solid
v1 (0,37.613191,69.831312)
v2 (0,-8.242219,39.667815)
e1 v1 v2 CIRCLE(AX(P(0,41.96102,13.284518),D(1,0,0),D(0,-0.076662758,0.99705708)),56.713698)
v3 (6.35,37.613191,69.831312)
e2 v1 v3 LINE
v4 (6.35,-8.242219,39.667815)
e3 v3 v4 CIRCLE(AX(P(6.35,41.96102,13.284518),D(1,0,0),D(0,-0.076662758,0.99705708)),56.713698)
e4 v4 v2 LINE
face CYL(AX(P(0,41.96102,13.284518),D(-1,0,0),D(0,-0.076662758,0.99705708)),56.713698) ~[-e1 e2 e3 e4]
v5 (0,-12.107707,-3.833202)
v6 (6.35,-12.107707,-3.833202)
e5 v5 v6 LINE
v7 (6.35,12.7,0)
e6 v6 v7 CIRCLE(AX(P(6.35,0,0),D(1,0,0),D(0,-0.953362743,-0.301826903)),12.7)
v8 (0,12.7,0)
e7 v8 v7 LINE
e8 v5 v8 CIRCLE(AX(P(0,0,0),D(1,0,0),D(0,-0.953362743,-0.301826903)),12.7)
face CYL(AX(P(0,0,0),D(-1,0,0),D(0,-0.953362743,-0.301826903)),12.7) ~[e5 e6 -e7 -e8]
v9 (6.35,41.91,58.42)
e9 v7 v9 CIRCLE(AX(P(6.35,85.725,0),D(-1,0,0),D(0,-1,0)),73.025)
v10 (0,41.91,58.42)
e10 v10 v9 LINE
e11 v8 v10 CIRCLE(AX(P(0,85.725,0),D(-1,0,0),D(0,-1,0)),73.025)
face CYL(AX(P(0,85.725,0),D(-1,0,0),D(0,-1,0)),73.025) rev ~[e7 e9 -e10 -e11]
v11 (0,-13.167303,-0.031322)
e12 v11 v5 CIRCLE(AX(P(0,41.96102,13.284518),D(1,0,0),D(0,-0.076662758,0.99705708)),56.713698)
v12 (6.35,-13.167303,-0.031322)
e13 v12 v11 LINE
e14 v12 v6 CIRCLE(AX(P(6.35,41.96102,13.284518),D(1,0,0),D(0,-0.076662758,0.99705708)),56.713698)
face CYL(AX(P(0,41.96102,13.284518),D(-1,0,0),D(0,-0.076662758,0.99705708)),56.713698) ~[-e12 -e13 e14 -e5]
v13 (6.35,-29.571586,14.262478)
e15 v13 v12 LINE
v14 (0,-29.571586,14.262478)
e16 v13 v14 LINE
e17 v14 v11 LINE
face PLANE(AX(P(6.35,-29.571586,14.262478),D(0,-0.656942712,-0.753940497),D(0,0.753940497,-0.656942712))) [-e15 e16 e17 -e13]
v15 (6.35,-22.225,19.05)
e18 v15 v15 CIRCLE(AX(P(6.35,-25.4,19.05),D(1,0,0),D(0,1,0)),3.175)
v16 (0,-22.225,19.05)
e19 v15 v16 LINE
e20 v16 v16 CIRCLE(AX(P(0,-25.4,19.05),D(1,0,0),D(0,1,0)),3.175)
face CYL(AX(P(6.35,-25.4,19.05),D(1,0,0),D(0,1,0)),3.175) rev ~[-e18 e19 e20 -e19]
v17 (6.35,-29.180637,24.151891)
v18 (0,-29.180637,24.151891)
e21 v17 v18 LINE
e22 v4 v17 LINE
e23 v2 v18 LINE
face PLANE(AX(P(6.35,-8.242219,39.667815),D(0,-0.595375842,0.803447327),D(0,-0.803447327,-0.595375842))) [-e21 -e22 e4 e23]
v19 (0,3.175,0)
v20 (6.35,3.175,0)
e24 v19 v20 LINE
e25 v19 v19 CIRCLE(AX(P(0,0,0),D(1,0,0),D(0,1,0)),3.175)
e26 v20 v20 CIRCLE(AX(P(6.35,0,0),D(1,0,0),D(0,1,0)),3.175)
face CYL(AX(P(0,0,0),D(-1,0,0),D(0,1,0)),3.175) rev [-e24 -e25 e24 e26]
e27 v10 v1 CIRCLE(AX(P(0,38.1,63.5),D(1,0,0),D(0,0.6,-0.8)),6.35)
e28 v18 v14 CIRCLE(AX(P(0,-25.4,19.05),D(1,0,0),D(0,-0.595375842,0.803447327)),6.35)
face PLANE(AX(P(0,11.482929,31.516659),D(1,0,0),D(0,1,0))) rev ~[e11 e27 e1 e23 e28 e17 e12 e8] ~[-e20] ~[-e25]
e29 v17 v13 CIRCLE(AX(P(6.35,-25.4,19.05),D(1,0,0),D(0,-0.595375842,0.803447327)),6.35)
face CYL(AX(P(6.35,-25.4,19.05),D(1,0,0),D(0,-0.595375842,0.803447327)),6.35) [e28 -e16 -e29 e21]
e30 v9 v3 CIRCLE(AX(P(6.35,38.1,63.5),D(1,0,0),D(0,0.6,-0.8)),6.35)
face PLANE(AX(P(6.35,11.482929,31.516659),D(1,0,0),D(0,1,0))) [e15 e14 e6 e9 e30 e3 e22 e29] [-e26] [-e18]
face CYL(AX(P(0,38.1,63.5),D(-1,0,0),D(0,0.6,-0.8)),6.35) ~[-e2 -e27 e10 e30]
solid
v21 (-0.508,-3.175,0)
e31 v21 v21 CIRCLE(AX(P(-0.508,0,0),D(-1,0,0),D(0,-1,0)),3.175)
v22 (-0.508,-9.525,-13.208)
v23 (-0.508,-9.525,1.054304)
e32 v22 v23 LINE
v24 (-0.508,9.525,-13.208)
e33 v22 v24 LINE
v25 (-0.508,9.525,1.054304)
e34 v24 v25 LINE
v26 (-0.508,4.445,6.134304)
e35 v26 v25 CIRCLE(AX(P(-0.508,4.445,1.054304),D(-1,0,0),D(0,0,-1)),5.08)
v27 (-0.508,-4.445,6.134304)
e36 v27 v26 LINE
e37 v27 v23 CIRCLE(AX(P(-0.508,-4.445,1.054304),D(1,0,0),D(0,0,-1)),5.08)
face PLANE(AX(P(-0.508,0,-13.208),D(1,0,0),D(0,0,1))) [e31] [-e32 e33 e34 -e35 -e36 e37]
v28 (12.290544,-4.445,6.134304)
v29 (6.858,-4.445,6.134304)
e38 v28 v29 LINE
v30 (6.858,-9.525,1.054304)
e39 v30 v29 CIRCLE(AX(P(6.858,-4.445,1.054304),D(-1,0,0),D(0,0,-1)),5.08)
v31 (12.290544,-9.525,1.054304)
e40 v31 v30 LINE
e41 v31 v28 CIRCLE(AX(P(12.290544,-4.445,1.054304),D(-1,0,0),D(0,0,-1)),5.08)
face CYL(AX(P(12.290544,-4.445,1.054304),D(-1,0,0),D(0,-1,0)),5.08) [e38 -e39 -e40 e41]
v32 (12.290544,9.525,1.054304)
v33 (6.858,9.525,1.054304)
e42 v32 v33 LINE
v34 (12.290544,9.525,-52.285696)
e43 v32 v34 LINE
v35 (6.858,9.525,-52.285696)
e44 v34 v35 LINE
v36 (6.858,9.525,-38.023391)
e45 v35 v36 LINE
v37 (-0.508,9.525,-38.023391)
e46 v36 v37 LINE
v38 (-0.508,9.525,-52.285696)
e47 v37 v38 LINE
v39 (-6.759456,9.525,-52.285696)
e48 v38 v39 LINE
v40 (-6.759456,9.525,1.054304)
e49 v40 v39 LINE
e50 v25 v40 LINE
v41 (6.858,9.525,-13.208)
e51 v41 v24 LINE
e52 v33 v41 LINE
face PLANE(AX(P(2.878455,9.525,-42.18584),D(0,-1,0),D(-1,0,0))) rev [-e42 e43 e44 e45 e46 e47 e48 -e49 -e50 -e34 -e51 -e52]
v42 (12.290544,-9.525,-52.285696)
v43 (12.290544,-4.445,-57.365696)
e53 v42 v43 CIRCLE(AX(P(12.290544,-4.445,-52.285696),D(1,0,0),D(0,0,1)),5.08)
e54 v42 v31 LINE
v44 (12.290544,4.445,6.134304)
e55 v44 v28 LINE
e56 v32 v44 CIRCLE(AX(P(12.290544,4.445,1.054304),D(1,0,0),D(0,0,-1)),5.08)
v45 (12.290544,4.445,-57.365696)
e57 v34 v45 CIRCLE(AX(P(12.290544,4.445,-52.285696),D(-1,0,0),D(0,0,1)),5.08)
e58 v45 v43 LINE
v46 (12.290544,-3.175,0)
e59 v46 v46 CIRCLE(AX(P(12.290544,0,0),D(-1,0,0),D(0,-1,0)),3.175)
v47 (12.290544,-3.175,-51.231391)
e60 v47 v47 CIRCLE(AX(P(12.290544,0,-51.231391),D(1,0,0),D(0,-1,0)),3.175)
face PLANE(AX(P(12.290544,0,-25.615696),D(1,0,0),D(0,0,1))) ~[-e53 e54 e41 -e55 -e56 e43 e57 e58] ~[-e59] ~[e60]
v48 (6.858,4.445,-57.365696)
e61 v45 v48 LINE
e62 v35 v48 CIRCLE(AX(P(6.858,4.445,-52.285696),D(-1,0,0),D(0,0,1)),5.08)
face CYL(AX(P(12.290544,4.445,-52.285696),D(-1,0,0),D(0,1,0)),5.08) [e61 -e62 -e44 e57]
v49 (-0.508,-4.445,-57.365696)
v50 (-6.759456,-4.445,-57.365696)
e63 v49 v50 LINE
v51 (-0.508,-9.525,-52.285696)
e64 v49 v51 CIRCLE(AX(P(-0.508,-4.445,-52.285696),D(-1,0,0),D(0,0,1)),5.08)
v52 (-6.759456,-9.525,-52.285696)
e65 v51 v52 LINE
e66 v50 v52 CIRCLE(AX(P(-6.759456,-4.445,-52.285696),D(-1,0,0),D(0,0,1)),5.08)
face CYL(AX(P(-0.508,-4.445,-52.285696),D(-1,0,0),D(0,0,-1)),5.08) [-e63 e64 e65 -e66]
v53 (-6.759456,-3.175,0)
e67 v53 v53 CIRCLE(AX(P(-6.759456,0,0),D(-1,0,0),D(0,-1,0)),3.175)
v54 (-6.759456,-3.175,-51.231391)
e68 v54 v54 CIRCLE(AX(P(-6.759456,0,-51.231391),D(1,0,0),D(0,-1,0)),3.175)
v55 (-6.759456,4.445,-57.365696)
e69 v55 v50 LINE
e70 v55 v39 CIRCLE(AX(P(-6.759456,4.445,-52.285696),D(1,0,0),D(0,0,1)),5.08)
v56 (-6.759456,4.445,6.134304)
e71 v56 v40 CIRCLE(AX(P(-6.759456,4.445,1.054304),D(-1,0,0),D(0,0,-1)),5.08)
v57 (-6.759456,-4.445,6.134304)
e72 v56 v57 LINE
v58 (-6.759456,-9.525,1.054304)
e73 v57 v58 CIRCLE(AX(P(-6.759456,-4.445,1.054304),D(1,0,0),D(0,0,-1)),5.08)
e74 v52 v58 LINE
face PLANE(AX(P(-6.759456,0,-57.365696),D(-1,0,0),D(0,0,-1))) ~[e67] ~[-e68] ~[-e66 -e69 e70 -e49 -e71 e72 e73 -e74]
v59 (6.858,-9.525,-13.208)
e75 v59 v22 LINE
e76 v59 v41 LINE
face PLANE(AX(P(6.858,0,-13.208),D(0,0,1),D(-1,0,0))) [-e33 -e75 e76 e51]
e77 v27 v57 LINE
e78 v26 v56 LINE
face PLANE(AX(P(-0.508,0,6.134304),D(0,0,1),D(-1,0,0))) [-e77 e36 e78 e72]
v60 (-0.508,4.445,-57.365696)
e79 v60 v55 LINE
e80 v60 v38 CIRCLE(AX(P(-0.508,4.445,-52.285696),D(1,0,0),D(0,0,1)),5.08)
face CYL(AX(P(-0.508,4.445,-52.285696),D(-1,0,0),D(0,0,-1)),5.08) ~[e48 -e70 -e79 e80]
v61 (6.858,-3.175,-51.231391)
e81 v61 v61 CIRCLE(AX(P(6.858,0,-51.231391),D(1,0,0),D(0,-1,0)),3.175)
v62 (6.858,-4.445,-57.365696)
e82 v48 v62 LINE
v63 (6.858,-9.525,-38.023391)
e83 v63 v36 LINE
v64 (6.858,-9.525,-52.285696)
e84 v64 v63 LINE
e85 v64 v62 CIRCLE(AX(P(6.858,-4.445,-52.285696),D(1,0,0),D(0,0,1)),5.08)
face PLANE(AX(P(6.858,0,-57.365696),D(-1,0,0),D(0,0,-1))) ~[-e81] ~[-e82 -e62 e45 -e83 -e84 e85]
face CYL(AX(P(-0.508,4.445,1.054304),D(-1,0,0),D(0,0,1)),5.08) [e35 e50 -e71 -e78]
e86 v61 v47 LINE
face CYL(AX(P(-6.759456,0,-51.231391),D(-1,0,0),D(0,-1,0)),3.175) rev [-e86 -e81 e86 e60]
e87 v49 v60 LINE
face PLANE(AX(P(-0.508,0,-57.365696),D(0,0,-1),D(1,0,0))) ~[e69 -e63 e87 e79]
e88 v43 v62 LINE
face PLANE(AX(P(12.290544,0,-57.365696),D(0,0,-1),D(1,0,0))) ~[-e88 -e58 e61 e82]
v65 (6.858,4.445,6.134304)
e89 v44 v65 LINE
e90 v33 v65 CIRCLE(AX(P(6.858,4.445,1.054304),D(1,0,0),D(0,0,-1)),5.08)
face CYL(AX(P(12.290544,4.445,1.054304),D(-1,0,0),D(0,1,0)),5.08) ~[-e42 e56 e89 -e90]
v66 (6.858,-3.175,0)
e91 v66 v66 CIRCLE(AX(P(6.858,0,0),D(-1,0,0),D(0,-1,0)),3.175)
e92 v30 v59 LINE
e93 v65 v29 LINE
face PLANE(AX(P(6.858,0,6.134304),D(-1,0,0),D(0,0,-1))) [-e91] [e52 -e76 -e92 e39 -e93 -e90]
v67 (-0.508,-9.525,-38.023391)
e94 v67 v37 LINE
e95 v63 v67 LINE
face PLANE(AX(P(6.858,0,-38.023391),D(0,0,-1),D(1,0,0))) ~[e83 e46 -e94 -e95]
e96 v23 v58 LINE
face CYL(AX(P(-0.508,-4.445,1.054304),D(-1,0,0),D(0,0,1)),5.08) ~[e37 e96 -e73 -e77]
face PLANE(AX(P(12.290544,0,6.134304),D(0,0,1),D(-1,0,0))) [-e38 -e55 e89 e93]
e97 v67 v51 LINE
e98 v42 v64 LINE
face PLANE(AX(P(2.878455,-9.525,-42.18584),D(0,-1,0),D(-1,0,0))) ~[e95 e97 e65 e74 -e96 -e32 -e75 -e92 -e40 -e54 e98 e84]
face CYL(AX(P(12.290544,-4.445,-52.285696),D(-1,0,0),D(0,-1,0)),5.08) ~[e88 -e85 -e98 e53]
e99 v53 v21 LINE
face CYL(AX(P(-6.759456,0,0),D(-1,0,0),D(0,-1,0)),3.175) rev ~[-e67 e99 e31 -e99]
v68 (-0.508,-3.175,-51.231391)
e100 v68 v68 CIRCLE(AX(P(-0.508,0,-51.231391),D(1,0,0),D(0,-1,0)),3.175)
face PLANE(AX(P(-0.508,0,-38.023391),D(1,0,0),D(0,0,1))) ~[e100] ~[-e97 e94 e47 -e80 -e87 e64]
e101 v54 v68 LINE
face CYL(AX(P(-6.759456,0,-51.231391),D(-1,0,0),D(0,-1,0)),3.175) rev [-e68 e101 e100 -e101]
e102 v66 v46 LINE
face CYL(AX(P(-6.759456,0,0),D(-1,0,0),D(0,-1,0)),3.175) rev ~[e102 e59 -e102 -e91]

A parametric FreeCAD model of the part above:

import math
import FreeCAD as App
import Part
import Sketcher

V = App.Vector
Q = App.Units.Quantity


def edges_at(feature, points):
    """Names of the edges that pass closest to the given points."""
    edges = feature.Shape.Edges
    near = lambda p: min(range(len(edges)), key=lambda i: edges[i].distToShape(Part.Vertex(*p))[0])
    return sorted({f"Edge{near(p) + 1}" for p in points})


def add_polygon(sketch, points):
    """Adds a closed chain of lines whose ends are joined by coincident constraints."""
    first, n = sketch.GeometryCount, len(points)
    for a, b in zip(points, points[1:] + points[:1]):
        sketch.addGeometry(Part.LineSegment(App.Vector(*a, 0), App.Vector(*b, 0)), False)
    for i in range(n):
        sketch.addConstraint(Sketcher.Constraint("Coincident", first + i, 2, first + (i + 1) % n, 1))

doc = App.newDocument("Part")
body = doc.addObject("PartDesign::Body", "Body")

# Sketch on YZ plane
sketch1 = body.newObject("Sketcher::SketchObject", "Sketch")
sketch1.AttachmentSupport = (doc.getObject("YZ_Plane"), [""])
sketch1.MapMode = "FlatFace"
sketch1.addGeometry(Part.ArcOfCircle(Part.Circle(V(42, 13.3, 0), V(0, 0, 1), 56.7), math.radians(94), math.radians(198)), False)
sketch1.addGeometry(Part.ArcOfCircle(Part.Circle(V(0, 0, 0), V(0, 0, 1), 12.7), math.radians(-162), math.radians(0)), False)
sketch1.addGeometry(Part.ArcOfCircle(Part.Circle(V(85.7, 0, 0), V(0, 0, 1), 73), math.radians(127), math.radians(180)), False)
sketch1.addGeometry(Part.ArcOfCircle(Part.Circle(V(38.1, 63.5, 0), V(0, 0, 1), 6.3), math.radians(-53), math.radians(94)), False)
sketch1.addGeometry(Part.Circle(V(0, 0, 0), V(0, 0, 1), 3.2), False)
sketch1.addConstraint(Sketcher.Constraint("Tangent", 0, 2, 1, 1))
sketch1.addConstraint(Sketcher.Constraint("Tangent", 1, 2, 2, 2))
sketch1.addConstraint(Sketcher.Constraint("Tangent", 2, 1, 3, 1))
sketch1.addConstraint(Sketcher.Constraint("Tangent", 3, 2, 0, 1))
sketch1.addConstraint(Sketcher.Constraint("Coincident", 1, 3, -1, 1))
sketch1.addConstraint(Sketcher.Constraint("Coincident", 4, 3, -1, 1))
sketch1.addConstraint(Sketcher.Constraint("PointOnObject", 2, 3, -1))
sketch1.addConstraint(Sketcher.Constraint("Radius", 1, Q("0.5 in")))
sketch1.addConstraint(Sketcher.Constraint("Diameter", 4, Q("0.25 in")))
sketch1.addConstraint(Sketcher.Constraint("Radius", 3, Q("0.25 in")))
sketch1.addConstraint(Sketcher.Constraint("Radius", 2, Q("2.875 in")))
sketch1.addConstraint(Sketcher.Constraint("DistanceX", 1, 2, 3, 3, Q("1 in")))
sketch1.addConstraint(Sketcher.Constraint("Radius", 0, Q("56.713698 mm")))
pad1 = body.newObject("PartDesign::Pad", "Pad")
pad1.Profile = sketch1
pad1.Length = Q("0.25 in")

# Sketch on YZ plane
sketch2 = body.newObject("Sketcher::SketchObject", "Sketch001")
sketch2.AttachmentSupport = (doc.getObject("YZ_Plane"), [""])
sketch2.MapMode = "FlatFace"
sketch2.AttachmentOffset = App.Placement(V(0, 0, 0.25 * 25.4), App.Rotation())
sketch2.addGeometry(Part.LineSegment(V(-8.2, 39.7, 0), V(-29.2, 24.2, 0)), False)
sketch2.addGeometry(Part.ArcOfCircle(Part.Circle(V(-25.4, 19.1, 0), V(0, 0, 1), 6.3), math.radians(127), math.radians(229)), False)
sketch2.addGeometry(Part.LineSegment(V(-29.6, 14.3, 0), V(-13.2, 0, 0)), False)
sketch2.addGeometry(Part.ArcOfCircle(Part.Circle(V(42, 13.3, 0), V(0, 0, 1), 56.7), math.radians(152), math.radians(194)), False)
sketch2.addGeometry(Part.Circle(V(-25.4, 19.1, 0), V(0, 0, 1), 3.2), False)
sketch2.addConstraint(Sketcher.Constraint("Tangent", 0, 2, 1, 1))
sketch2.addConstraint(Sketcher.Constraint("Tangent", 1, 2, 2, 1))
sketch2.addConstraint(Sketcher.Constraint("Coincident", 2, 2, 3, 2))
sketch2.addConstraint(Sketcher.Constraint("Coincident", 3, 1, 0, 1))
sketch2.addConstraint(Sketcher.Constraint("Coincident", 4, 3, 1, 3))
sketch2.addConstraint(Sketcher.Constraint("Diameter", 4, Q("0.25 in")))
sketch2.addConstraint(Sketcher.Constraint("Radius", 1, Q("0.25 in")))
sketch2.addConstraint(Sketcher.Constraint("DistanceX", 1, 3, -1, 1, Q("1 in")))
sketch2.addConstraint(Sketcher.Constraint("DistanceY", -1, 1, 1, 3, Q("0.75 in")))
sketch2.addConstraint(Sketcher.Constraint("Radius", 3, Q("56.713698 mm")))
sketch2.addConstraint(Sketcher.Constraint("DistanceY", 2, 2, 1, 2, Q("14.2938 mm")))
sketch2.addConstraint(Sketcher.Constraint("Distance", 2, Q("21.758061 mm")))
sketch2.addConstraint(Sketcher.Constraint("DistanceX", -1, 1, 3, 3, Q("41.96102 mm")))
sketch2.addConstraint(Sketcher.Constraint("DistanceY", -1, 1, 0, 2, Q("24.151891 mm")))
pad2 = body.newObject("PartDesign::Pad", "Pad001")
pad2.Profile = sketch2
pad2.Length = Q("0.25 in")
pad2.Reversed = True
body2 = doc.addObject("PartDesign::Body", "Body001")

# Sketch on XZ plane
sketch3 = body2.newObject("Sketcher::SketchObject", "Sketch002")
sketch3.AttachmentSupport = (doc.getObject("XZ_Plane001"), [""])
sketch3.MapMode = "FlatFace"
add_polygon(sketch3, [(-1, 6), (-7, 6), (-7, -26), (12, -26), (12, 6), (7, 6), (7, -13), (-1, -13)])  # lines 0-7
sketch3.addConstraint(Sketcher.Constraint("Horizontal", 0))
sketch3.addConstraint(Sketcher.Constraint("Vertical", 1))
sketch3.addConstraint(Sketcher.Constraint("Horizontal", 2))
sketch3.addConstraint(Sketcher.Constraint("Vertical", 3))
sketch3.addConstraint(Sketcher.Constraint("Horizontal", 4))
sketch3.addConstraint(Sketcher.Constraint("Vertical", 5))
sketch3.addConstraint(Sketcher.Constraint("Horizontal", 6))
sketch3.addConstraint(Sketcher.Constraint("Vertical", 7))
sketch3.addConstraint(Sketcher.Constraint("Horizontal", 0, 2, 3, 2))
sketch3.addConstraint(Sketcher.Constraint("DistanceX", 2, 1, 2, 2, Q("0.75 in")))
sketch3.addConstraint(Sketcher.Constraint("DistanceX", 6, 2, 6, 1, Q("0.29 in")))
sketch3.addConstraint(Sketcher.Constraint("DistanceY", 1, 2, 1, 1, Q("1.25 in")))
sketch3.addConstraint(Sketcher.Constraint("DistanceX", -1, 1, 4, 2, Q("0.27 in")))
sketch3.addConstraint(Sketcher.Constraint("DistanceY", 5, 2, -1, 1, Q("0.52 in")))
sketch3.addConstraint(Sketcher.Constraint("DistanceX", 0, 2, 0, 1, Q("6.251456 mm")))
sketch3.addConstraint(Sketcher.Constraint("DistanceY", 5, 2, 5, 1, Q("19.342304 mm")))
pad3 = body2.newObject("PartDesign::Pad", "Pad002")
pad3.Profile = sketch3
pad3.Length = Q("0.75 in")
pad3.Midplane = True

# Sketch on YZ plane
sketch4 = body2.newObject("Sketcher::SketchObject", "Sketch003")
sketch4.AttachmentSupport = (doc.getObject("YZ_Plane001"), [""])
sketch4.MapMode = "FlatFace"
sketch4.AttachmentOffset = App.Placement(V(0, 0, -6.759456), App.Rotation())
sketch4.addGeometry(Part.Circle(V(0, 0, 0), V(0, 0, 1), 3.2), False)
sketch4.addConstraint(Sketcher.Constraint("Coincident", 0, 3, -1, 1))
sketch4.addConstraint(Sketcher.Constraint("Diameter", 0, Q("0.25 in")))
pocket1 = body2.newObject("PartDesign::Pocket", "Pocket")
pocket1.Profile = sketch4
pocket1.Length = Q("1 in")
pocket1.Reversed = True
doc.recompute()

fillet = body2.newObject("PartDesign::Fillet", "Fillet")
fillet.Base = (pocket1, edges_at(pocket1, [
    (-3.634, -9.525, 6.134),
    (-3.634, 9.525, 6.134),
    (9.574, -9.525, 6.134),
    (9.574, 9.525, 6.134),
]))
fillet.Radius = Q("0.2 in")
body3 = doc.addObject("PartDesign::Body", "Body002")
doc.recompute()

body3.BaseFeature = body2
doc.recompute()

mirroring = doc.addObject("Part::Mirroring", "Mirroring")
mirroring.Source = body2
mirroring.Base = V(2.765544, 0, -25.615696)
mirroring.Normal = V(0, 0, -1)
body4 = doc.addObject("PartDesign::Body", "Body003")
body4.BaseFeature = mirroring
boolean = body3.newObject("PartDesign::Boolean", "Boolean")
boolean.Type = "Fuse"
boolean.addObjects([body4])
doc.recompute()
mirroring.Visibility = False

doc.recompute()
